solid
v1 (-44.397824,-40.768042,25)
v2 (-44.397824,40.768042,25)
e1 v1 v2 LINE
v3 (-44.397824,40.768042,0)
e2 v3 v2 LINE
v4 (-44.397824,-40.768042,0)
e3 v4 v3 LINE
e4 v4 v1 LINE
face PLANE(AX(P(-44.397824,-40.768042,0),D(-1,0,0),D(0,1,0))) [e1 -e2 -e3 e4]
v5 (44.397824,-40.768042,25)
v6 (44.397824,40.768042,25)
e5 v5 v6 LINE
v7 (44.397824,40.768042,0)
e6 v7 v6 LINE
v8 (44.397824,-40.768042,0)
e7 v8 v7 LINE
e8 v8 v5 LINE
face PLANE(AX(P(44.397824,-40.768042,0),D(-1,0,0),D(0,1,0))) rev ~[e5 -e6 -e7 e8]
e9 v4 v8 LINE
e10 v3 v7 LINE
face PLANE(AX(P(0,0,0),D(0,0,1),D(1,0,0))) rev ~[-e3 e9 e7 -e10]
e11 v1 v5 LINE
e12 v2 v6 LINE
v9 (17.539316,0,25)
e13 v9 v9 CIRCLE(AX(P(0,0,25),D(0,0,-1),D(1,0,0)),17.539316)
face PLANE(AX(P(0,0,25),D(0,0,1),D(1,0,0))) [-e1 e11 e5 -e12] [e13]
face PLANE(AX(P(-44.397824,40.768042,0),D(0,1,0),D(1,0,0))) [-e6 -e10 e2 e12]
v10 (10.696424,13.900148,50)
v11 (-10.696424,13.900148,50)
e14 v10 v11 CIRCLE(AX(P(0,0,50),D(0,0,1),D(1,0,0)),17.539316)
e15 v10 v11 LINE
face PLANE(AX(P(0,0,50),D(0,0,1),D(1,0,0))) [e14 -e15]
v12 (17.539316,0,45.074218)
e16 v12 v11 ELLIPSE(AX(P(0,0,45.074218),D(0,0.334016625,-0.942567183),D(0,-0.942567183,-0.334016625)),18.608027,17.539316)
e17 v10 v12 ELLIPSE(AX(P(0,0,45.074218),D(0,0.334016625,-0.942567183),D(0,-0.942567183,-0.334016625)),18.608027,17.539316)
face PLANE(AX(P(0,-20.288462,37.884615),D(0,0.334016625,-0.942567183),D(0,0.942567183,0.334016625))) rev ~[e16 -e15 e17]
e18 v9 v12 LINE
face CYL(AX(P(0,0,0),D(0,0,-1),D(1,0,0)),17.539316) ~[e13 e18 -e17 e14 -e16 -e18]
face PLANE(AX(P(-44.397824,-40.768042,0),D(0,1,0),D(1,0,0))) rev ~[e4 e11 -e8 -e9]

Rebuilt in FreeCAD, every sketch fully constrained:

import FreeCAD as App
import Part
import Sketcher

V = App.Vector

doc = App.newDocument("Part")
params = doc.addObject("Spreadsheet::Sheet", "Params")
for row, (alias, value) in enumerate([
    ("pad1_length", "50 mm"),
    ("pad2_length", "25 mm"),
    ("pocket1_length", "50 mm"),
], start=1):
    params.set(f"A{row}", alias)
    params.set(f"B{row}", "=" + value)
    params.setAlias(f"B{row}", alias)

body = doc.addObject("PartDesign::Body", "Body")

sketch1 = body.newObject("Sketcher::SketchObject", "Sketch")
sketch1.AttachmentSupport = (doc.getObject("XY_Plane"), [""])
sketch1.MapMode = "FlatFace"
sketch1.addGeometry(Part.Circle(V(0, 0, 0), V(0, 0, 1), 18), False)
sketch1.addConstraint([
    Sketcher.Constraint("Coincident", 0, 3, -1, 1),
    Sketcher.Constraint("Diameter", 0, 35.078631),
])
pad1 = body.newObject("PartDesign::Pad", "Pad")
pad1.Profile = sketch1
pad1.setExpression("Length", "Params.pad1_length")

sketch2 = body.newObject("Sketcher::SketchObject", "Sketch001")
sketch2.AttachmentSupport = (doc.getObject("XY_Plane"), [""])
sketch2.MapMode = "FlatFace"
sketch2.addGeometry([
    Part.LineSegment(V(-44, 41, 0), V(-44, -41, 0)),
    Part.LineSegment(V(-44, -41, 0), V(44, -41, 0)),
    Part.LineSegment(V(44, -41, 0), V(44, 41, 0)),
    Part.LineSegment(V(44, 41, 0), V(-44, 41, 0)),
], False)
sketch2.addConstraint([
    Sketcher.Constraint("Coincident", 0, 2, 1, 1),
    Sketcher.Constraint("Coincident", 1, 2, 2, 1),
    Sketcher.Constraint("Coincident", 2, 2, 3, 1),
    Sketcher.Constraint("Coincident", 3, 2, 0, 1),
    Sketcher.Constraint("Vertical", 0),
    Sketcher.Constraint("Horizontal", 1),
    Sketcher.Constraint("Vertical", 2),
    Sketcher.Constraint("Horizontal", 3),
    Sketcher.Constraint("Symmetric", 0, 2, 2, 2, -1, 1),
    Sketcher.Constraint("DistanceX", 1, 1, 1, 2, 88.795647),
    Sketcher.Constraint("DistanceY", 0, 2, 0, 1, 81.536084),
])
pad2 = body.newObject("PartDesign::Pad", "Pad001")
pad2.Profile = sketch2
pad2.setExpression("Length", "Params.pad2_length")

sketch3 = body.newObject("Sketcher::SketchObject", "Sketch002")
sketch3.AttachmentSupport = (doc.getObject("YZ_Plane"), [""])
sketch3.MapMode = "FlatFace"
sketch3.addGeometry([
    Part.LineSegment(V(-20, 38, 0), V(19, 52, 0)),
    Part.LineSegment(V(19, 52, 0), V(-20, 53, 0)),
    Part.LineSegment(V(-20, 53, 0), V(-20, 38, 0)),
], False)
sketch3.addConstraint([
    Sketcher.Constraint("Coincident", 0, 2, 1, 1),
    Sketcher.Constraint("Coincident", 1, 2, 2, 1),
    Sketcher.Constraint("Coincident", 2, 2, 0, 1),
    Sketcher.Constraint("Vertical", 2),
    Sketcher.Constraint("DistanceY", 2, 2, 2, 1, 15.576925),
    Sketcher.Constraint("DistanceY", -1, 1, 0, 2, 51.923081),
    Sketcher.Constraint("DistanceX", 1, 2, -1, 1, 20.288462),
    Sketcher.Constraint("DistanceY", -1, 1, 1, 2, 53.46154),
    Sketcher.Constraint("Distance", 0, 42.029243),
])
pocket1 = body.newObject("PartDesign::Pocket", "Pocket")
pocket1.Profile = sketch3
pocket1.setExpression("Length", "Params.pocket1_length")
pocket1.Midplane = True

doc.recompute()
